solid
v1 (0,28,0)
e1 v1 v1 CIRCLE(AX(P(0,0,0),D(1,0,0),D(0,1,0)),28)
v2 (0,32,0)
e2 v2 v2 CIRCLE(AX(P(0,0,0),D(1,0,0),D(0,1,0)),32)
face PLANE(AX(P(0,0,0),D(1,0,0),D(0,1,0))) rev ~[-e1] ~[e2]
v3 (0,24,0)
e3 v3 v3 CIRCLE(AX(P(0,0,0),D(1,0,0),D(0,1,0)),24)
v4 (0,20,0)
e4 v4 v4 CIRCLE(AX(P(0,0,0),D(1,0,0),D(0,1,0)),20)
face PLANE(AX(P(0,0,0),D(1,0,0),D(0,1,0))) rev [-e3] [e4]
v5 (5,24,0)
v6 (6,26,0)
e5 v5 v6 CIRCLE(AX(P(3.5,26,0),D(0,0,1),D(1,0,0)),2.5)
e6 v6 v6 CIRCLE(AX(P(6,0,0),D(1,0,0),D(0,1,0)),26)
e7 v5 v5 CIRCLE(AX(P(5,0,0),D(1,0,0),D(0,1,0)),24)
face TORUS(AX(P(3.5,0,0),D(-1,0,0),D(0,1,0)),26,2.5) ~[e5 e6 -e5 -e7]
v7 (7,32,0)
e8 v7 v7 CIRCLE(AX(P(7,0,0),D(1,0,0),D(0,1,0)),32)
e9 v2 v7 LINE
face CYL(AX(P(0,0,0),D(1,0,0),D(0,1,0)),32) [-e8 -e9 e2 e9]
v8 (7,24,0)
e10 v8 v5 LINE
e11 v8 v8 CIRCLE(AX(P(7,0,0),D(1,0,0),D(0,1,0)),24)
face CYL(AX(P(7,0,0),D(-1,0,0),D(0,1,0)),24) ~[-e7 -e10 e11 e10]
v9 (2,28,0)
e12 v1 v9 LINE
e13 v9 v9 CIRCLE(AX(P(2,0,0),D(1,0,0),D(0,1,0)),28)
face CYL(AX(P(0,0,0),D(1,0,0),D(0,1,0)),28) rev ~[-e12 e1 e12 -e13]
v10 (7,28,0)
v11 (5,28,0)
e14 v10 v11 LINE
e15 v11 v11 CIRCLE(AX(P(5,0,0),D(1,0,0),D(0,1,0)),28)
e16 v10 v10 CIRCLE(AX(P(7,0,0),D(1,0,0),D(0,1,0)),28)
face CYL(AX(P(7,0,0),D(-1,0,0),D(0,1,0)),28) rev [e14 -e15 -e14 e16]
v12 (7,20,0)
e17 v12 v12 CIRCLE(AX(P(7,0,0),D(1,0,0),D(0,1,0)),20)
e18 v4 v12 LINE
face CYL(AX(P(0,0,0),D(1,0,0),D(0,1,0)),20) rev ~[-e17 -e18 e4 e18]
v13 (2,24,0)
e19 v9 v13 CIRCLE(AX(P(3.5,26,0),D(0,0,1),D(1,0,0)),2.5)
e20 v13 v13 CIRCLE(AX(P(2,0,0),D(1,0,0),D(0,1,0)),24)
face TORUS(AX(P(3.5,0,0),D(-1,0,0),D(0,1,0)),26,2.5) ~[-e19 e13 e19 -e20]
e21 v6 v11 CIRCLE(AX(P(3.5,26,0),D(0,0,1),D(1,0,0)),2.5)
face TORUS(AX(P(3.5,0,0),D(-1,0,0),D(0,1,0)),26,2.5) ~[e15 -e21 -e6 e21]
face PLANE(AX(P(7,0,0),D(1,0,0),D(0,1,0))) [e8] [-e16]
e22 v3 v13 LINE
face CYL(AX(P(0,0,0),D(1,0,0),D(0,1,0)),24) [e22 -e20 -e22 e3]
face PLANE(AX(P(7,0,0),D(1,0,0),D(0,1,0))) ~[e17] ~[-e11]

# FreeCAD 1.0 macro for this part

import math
import FreeCAD as App
import Part
import Sketcher

doc = App.newDocument("Part")
params = doc.addObject("Spreadsheet::Sheet", "Params")
for row, (alias, value) in enumerate([
    ("sketch1_width", "7 mm"),
    ("sketch1_radius", "2.5 mm"),
    ("sketch1_width2", "2 mm"),
    ("sketch1_height", "4 mm"),
    ("revolution_angle", "360 deg"),
], start=1):
    params.set(f"A{row}", alias)
    params.set(f"B{row}", "=" + value)
    params.setAlias(f"B{row}", alias)

body = doc.addObject("PartDesign::Body", "Body")

# Sketch on XY plane
sketch1 = body.newObject("Sketcher::SketchObject", "Sketch")
sketch1.AttachmentSupport = (doc.getObject("XY_Plane"), [""])
sketch1.MapMode = "FlatFace"
sketch1.addGeometry([
    Part.LineSegment(App.Vector(7, 32, 0), App.Vector(0, 32, 0)),  # 0
    Part.LineSegment(App.Vector(0, 32, 0), App.Vector(0, 28, 0)),  # 1
    Part.LineSegment(App.Vector(0, 28, 0), App.Vector(2, 28, 0)),  # 2
    Part.ArcOfCircle(Part.Circle(App.Vector(3.5, 26, 0), App.Vector(0, 0, 1), 2.5), math.radians(127), math.radians(233)),  # 3
    Part.LineSegment(App.Vector(2, 24, 0), App.Vector(0, 24, 0)),  # 4
    Part.LineSegment(App.Vector(0, 24, 0), App.Vector(0, 20, 0)),  # 5
    Part.LineSegment(App.Vector(0, 20, 0), App.Vector(7, 20, 0)),  # 6
    Part.LineSegment(App.Vector(7, 20, 0), App.Vector(7, 24, 0)),  # 7
    Part.LineSegment(App.Vector(7, 24, 0), App.Vector(5, 24, 0)),  # 8
    Part.ArcOfCircle(Part.Circle(App.Vector(3.5, 26, 0), App.Vector(0, 0, 1), 2.5), math.radians(-53), math.radians(53)),  # 9
    Part.LineSegment(App.Vector(5, 28, 0), App.Vector(7, 28, 0)),  # 10
    Part.LineSegment(App.Vector(7, 28, 0), App.Vector(7, 32, 0)),  # 11
], False)
sketch1.addConstraint([
    Sketcher.Constraint("Coincident", 0, 2, 1, 1),
    Sketcher.Constraint("Coincident", 1, 2, 2, 1),
    Sketcher.Constraint("Coincident", 2, 2, 3, 1),
    Sketcher.Constraint("Coincident", 3, 2, 4, 1),
    Sketcher.Constraint("Coincident", 4, 2, 5, 1),
    Sketcher.Constraint("Coincident", 5, 2, 6, 1),
    Sketcher.Constraint("Coincident", 6, 2, 7, 1),
    Sketcher.Constraint("Coincident", 7, 2, 8, 1),
    Sketcher.Constraint("Coincident", 8, 2, 9, 1),
    Sketcher.Constraint("Coincident", 9, 2, 10, 1),
    Sketcher.Constraint("Coincident", 10, 2, 11, 1),
    Sketcher.Constraint("Coincident", 11, 2, 0, 1),
    Sketcher.Constraint("Horizontal", 0),
    Sketcher.Constraint("Vertical", 1),
    Sketcher.Constraint("Horizontal", 2),
    Sketcher.Constraint("Horizontal", 4),
    Sketcher.Constraint("Vertical", 5),
    Sketcher.Constraint("Horizontal", 6),
    Sketcher.Constraint("Vertical", 7),
    Sketcher.Constraint("Horizontal", 8),
    Sketcher.Constraint("Horizontal", 10),
    Sketcher.Constraint("Vertical", 11),
    Sketcher.Constraint("Coincident", 9, 3, 3, 3),
    Sketcher.Constraint("Equal", 3, 9),
    Sketcher.Constraint("PointOnObject", 0, 2, -2),
    Sketcher.Constraint("PointOnObject", 4, 2, -2),
    Sketcher.Constraint("Horizontal", 4, 2, 7, 2),
    Sketcher.Constraint("Horizontal", 2, 2, 9, 2),
    Sketcher.Constraint("Vertical", 2, 2, 3, 2),
    Sketcher.Constraint("Vertical", 7, 2, 10, 2),
    Sketcher.Constraint("Equal", 4, 8),
    Sketcher.Constraint("Equal", 1, 5),
    Sketcher.Constraint("DistanceX", 0, 2, 0, 1, 7.0),
    Sketcher.Constraint("Radius", 3, 2.5),
    Sketcher.Constraint("DistanceX", 2, 1, 2, 2, 2.0),
    Sketcher.Constraint("DistanceY", 1, 2, 1, 1, 4.0),
    Sketcher.Constraint("DistanceY", -1, 1, 3, 3, 26.0),
])
sketch1.setExpression("Constraints[32]", "Params.sketch1_width")
sketch1.setExpression("Constraints[33]", "Params.sketch1_radius")
sketch1.setExpression("Constraints[34]", "Params.sketch1_width2")
sketch1.setExpression("Constraints[35]", "Params.sketch1_height")
revolution = body.newObject("PartDesign::Revolution", "Revolution")
revolution.Profile = sketch1
revolution.ReferenceAxis = (sketch1, ["H_Axis"])
revolution.setExpression("Angle", "Params.revolution_angle")

doc.recompute()
